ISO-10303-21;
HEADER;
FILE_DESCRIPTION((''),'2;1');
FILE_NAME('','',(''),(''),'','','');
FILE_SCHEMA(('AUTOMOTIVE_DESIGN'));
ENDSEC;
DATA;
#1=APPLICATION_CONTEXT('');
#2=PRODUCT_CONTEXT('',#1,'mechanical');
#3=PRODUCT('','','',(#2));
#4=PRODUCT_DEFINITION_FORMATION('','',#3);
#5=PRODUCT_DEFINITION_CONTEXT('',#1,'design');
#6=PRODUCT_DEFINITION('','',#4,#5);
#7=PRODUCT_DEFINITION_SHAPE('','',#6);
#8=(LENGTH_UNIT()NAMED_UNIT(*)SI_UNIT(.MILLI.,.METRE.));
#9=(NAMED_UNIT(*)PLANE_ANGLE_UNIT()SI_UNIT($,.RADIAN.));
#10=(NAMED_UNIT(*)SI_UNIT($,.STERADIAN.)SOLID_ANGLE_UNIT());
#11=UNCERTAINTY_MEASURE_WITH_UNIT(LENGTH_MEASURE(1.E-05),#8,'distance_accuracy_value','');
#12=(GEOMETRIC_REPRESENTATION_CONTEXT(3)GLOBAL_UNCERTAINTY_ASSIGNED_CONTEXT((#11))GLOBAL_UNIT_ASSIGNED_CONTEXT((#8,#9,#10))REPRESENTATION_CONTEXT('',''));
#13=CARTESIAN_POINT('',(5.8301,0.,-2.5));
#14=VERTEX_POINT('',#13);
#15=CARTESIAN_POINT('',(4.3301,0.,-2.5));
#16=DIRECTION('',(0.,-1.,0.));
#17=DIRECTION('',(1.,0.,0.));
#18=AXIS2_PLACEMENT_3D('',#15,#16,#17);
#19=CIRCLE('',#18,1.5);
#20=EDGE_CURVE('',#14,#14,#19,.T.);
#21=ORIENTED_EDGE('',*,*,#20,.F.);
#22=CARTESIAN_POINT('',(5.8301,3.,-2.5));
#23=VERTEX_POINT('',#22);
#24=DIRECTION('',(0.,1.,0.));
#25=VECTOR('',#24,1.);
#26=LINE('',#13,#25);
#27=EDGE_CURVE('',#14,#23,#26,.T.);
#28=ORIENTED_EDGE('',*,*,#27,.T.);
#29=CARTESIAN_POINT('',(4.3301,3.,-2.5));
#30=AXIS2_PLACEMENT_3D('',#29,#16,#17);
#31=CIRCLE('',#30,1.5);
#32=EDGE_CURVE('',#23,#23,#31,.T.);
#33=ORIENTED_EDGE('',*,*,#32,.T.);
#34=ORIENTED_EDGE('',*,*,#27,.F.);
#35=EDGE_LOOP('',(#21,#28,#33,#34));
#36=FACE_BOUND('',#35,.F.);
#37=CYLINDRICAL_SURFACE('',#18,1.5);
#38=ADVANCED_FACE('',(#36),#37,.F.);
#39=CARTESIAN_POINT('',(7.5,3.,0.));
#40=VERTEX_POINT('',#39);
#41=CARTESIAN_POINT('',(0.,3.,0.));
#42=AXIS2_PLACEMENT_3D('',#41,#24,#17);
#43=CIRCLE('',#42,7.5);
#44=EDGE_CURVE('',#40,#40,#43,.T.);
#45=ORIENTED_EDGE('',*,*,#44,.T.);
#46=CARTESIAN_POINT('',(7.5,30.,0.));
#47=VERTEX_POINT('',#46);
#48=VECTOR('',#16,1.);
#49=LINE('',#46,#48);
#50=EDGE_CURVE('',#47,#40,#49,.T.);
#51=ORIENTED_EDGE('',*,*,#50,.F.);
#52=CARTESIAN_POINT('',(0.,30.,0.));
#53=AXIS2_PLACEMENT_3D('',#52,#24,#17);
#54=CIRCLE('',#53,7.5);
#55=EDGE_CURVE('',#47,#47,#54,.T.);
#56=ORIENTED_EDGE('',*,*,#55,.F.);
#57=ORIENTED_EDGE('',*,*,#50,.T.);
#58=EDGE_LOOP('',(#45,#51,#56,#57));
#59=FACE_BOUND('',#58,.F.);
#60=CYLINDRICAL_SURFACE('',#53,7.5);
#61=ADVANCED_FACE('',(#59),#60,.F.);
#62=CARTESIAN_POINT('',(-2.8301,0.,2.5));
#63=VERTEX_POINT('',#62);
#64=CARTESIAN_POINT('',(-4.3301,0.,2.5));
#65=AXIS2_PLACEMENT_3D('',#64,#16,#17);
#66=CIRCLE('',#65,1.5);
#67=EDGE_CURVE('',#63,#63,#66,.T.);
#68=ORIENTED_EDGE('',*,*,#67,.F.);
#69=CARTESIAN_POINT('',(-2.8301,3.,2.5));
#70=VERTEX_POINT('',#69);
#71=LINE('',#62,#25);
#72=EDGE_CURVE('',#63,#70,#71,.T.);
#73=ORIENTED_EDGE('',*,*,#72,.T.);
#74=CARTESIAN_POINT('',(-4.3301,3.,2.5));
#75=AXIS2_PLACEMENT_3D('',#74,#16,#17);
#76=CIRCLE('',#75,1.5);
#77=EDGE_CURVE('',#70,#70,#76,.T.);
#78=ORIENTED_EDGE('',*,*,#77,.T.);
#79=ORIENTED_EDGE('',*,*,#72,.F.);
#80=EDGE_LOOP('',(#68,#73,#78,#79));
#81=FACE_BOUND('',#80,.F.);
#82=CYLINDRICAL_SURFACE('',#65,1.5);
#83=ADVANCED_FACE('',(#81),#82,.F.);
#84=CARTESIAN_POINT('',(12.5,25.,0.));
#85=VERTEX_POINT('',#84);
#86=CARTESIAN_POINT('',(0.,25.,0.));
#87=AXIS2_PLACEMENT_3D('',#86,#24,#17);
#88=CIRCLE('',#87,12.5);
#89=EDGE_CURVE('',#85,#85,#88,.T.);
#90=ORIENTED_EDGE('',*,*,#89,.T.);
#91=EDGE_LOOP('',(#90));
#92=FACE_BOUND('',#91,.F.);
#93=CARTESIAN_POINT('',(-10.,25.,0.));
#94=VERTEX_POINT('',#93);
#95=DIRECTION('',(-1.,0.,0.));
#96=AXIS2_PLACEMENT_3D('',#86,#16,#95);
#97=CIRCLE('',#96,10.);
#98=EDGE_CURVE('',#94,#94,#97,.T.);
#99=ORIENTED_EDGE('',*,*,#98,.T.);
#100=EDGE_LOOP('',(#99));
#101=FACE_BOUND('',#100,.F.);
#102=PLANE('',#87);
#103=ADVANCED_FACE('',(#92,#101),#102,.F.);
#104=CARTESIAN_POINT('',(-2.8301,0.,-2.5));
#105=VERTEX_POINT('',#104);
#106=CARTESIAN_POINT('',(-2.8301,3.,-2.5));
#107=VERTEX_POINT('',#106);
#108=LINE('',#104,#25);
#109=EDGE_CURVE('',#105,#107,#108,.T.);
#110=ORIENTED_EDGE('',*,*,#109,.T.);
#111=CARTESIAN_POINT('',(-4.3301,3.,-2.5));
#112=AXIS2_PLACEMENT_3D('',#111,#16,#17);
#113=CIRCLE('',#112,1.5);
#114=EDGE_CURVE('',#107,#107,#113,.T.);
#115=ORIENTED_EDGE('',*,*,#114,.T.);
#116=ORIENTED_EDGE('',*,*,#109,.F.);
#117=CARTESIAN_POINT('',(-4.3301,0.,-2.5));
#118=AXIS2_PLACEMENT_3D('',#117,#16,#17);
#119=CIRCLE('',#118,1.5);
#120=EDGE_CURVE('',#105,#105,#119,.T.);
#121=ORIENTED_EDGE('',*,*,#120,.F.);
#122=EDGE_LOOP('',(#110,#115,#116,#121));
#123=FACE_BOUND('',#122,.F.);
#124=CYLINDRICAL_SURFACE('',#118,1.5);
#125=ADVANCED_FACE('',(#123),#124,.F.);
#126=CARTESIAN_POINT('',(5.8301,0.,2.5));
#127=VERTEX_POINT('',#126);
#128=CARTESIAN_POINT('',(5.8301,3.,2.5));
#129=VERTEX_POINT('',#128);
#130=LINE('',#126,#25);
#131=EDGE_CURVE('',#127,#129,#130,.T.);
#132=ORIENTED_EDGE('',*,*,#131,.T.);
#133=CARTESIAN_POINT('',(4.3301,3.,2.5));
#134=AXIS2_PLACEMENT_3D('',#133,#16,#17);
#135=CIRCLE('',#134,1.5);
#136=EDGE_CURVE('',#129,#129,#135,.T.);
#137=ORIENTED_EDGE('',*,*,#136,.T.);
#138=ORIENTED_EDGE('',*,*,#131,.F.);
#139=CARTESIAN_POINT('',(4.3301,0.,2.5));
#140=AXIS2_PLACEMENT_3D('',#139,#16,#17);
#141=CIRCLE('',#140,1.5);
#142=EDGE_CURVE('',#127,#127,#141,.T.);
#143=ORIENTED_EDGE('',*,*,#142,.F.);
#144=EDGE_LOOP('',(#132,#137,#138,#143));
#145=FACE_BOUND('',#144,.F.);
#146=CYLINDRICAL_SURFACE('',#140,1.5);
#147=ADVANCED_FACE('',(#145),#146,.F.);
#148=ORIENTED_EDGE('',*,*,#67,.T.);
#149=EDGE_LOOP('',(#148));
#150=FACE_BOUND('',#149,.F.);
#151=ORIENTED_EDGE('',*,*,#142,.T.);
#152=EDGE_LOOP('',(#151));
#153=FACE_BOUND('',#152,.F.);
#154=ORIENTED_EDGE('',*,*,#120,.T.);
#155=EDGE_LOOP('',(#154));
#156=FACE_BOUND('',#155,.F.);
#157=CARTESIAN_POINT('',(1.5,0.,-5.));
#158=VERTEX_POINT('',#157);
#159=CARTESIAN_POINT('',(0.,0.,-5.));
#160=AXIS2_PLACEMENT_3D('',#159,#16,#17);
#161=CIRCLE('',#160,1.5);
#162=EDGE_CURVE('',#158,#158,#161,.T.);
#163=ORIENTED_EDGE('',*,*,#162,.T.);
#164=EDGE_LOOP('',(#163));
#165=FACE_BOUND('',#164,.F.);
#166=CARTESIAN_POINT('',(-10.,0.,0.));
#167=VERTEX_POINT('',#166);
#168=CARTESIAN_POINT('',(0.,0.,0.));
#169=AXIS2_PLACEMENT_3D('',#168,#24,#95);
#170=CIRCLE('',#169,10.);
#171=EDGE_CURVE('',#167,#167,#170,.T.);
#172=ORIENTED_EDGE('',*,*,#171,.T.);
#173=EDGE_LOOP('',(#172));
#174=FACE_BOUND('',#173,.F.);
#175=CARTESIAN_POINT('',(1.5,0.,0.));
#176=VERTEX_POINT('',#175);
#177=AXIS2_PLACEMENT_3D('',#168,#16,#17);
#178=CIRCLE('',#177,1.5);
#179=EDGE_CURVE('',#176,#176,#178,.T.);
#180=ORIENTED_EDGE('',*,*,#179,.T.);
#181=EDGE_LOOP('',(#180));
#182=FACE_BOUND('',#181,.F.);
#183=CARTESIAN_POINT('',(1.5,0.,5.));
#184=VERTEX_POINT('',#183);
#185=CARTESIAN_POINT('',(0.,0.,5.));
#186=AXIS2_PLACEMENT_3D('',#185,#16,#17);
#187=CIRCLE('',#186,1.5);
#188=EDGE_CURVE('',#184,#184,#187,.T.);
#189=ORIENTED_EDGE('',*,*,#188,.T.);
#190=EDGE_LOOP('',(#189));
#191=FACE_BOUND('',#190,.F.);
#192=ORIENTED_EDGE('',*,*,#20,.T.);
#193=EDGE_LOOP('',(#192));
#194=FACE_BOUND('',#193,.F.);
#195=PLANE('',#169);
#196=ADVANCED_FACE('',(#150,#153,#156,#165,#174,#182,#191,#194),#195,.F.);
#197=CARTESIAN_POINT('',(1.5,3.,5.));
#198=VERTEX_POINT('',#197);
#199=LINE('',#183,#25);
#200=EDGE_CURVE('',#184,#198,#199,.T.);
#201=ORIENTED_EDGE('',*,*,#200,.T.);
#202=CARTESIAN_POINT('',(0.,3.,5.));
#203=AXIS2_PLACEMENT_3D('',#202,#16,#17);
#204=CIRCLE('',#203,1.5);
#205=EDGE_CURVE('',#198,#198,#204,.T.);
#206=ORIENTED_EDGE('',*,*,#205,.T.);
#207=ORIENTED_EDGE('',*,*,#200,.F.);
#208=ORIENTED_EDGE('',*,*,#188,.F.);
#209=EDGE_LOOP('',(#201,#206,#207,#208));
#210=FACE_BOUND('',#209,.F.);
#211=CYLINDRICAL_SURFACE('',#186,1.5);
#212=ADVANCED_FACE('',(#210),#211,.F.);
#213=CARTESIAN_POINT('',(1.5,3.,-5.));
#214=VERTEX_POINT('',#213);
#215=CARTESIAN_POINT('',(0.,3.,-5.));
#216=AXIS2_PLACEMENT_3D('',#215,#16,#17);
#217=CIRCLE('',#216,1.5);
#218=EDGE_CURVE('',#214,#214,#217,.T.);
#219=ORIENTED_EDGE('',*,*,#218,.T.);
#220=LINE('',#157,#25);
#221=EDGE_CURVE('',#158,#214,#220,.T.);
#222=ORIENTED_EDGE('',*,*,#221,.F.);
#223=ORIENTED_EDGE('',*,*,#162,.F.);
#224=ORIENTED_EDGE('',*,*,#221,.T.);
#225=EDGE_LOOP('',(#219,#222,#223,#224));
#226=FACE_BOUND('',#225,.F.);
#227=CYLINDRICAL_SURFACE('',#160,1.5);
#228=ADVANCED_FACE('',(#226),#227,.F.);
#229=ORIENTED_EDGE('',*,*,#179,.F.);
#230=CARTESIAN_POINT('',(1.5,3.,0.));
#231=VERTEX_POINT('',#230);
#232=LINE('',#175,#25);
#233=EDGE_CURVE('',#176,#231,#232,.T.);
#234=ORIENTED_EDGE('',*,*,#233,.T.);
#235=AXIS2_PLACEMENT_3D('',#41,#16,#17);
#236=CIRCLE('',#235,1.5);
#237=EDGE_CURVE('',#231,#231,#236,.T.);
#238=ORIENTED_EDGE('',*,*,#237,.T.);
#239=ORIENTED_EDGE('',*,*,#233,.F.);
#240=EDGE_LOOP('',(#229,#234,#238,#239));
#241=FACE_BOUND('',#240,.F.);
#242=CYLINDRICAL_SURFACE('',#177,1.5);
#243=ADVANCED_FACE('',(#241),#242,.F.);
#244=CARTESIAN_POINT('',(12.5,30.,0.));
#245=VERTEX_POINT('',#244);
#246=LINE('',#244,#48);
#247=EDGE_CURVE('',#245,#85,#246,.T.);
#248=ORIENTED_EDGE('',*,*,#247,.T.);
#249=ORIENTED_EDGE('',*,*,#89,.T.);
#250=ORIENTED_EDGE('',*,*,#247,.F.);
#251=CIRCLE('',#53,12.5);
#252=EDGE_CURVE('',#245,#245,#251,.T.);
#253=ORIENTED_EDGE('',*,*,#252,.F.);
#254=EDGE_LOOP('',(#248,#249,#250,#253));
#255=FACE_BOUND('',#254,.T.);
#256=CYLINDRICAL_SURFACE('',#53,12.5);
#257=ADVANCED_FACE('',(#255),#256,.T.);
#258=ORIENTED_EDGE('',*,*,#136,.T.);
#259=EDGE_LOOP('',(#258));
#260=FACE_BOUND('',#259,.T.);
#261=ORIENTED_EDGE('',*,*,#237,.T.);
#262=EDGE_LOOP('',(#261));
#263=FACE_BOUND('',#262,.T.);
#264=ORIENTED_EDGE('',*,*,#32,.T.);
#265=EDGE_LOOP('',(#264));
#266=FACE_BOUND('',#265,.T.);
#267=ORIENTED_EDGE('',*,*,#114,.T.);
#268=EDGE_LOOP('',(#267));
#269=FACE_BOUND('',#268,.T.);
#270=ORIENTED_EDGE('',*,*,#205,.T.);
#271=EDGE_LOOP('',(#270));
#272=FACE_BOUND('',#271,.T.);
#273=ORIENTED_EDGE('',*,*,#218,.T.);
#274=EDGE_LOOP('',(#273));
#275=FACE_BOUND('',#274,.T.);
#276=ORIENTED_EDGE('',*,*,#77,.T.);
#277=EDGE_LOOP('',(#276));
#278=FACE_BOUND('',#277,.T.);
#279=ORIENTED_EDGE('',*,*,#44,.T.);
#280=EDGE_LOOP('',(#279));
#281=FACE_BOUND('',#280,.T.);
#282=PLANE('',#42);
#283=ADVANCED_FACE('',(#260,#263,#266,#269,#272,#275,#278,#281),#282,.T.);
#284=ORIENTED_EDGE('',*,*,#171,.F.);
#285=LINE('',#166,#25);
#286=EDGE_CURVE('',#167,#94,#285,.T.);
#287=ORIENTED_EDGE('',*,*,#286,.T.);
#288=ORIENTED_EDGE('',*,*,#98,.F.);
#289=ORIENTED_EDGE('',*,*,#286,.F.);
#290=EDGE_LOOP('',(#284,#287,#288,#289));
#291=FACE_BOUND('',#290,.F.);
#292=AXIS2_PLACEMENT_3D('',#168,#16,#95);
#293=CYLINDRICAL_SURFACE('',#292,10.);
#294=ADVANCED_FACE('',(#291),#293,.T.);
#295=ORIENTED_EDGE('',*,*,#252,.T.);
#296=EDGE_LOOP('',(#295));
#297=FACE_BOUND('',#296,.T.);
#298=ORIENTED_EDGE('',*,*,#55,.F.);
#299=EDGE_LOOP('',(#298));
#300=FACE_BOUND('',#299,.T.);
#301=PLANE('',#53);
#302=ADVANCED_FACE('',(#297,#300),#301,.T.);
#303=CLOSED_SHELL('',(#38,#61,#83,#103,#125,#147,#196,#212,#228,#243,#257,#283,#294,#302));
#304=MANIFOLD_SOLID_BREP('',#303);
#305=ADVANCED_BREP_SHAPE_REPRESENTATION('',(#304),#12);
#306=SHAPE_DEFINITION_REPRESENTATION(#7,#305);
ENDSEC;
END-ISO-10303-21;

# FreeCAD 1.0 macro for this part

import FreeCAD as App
import Part
import Sketcher
from FreeCAD import Vector
Q = App.Units.Quantity

doc = App.newDocument("Part")
params = doc.addObject("Spreadsheet::Sheet", "Params")
for row, (alias, value) in enumerate([
    ("sketch1_diameter", "20 mm"),
    ("pad1_length", "30 mm"),
    ("sketch2_diameter", "25 mm"),
    ("pad2_length", "5 mm"),
    ("sketch3_diameter", "15 mm"),
    ("pocket1_length", "27 mm"),
    ("sketch4_diameter", "3 mm"),
    ("pocket2_length", "10 mm"),
], start=1):
    params.set(f"A{row}", alias)
    params.set(f"B{row}", "=" + value)
    params.setAlias(f"B{row}", alias)

body = doc.addObject("PartDesign::Body", "Body")

# Sketch on XZ plane
sketch1 = doc.addObject("Sketcher::SketchObject", "Sketch")
body.addObject(sketch1)
sketch1.AttachmentSupport = (doc.XZ_Plane, [""])
sketch1.MapMode = "FlatFace"
sketch1.addGeometry(Part.Circle(Vector(0, 0, 0), Vector(0, 0, 1), 10), False)
sketch1.addConstraint([
    Sketcher.Constraint("Coincident", 0, 3, -1, 1),
    Sketcher.Constraint("Diameter", 0, Q("20 mm")),
])
sketch1.setExpression("Constraints[1]", "Params.sketch1_diameter")
pad1 = doc.addObject("PartDesign::Pad", "Pad")
body.addObject(pad1)
pad1.Profile = sketch1
pad1.setExpression("Length", "Params.pad1_length")
pad1.Reversed = True

# Sketch on XZ plane
sketch2 = doc.addObject("Sketcher::SketchObject", "Sketch001")
body.addObject(sketch2)
sketch2.AttachmentSupport = (doc.XZ_Plane, [""])
sketch2.MapMode = "FlatFace"
sketch2.AttachmentOffset = App.Placement(Vector(0, 0, -30), App.Rotation())
sketch2.addGeometry(Part.Circle(Vector(0, 0, 0), Vector(0, 0, 1), 12), False)
sketch2.addConstraint([
    Sketcher.Constraint("Coincident", 0, 3, -1, 1),
    Sketcher.Constraint("Diameter", 0, Q("25 mm")),
])
sketch2.setExpression("Constraints[1]", "Params.sketch2_diameter")
pad2 = doc.addObject("PartDesign::Pad", "Pad001")
body.addObject(pad2)
pad2.Profile = sketch2
pad2.setExpression("Length", "Params.pad2_length")

# Sketch on XZ plane
sketch3 = doc.addObject("Sketcher::SketchObject", "Sketch002")
body.addObject(sketch3)
sketch3.AttachmentSupport = (doc.XZ_Plane, [""])
sketch3.MapMode = "FlatFace"
sketch3.AttachmentOffset = App.Placement(Vector(0, 0, -30), App.Rotation())
sketch3.addGeometry(Part.Circle(Vector(0, 0, 0), Vector(0, 0, 1), 8), False)
sketch3.addConstraint([
    Sketcher.Constraint("Coincident", 0, 3, -1, 1),
    Sketcher.Constraint("Diameter", 0, Q("15 mm")),
])
sketch3.setExpression("Constraints[1]", "Params.sketch3_diameter")
pocket1 = doc.addObject("PartDesign::Pocket", "Pocket")
body.addObject(pocket1)
pocket1.Profile = sketch3
pocket1.setExpression("Length", "Params.pocket1_length")
pocket1.Reversed = True

# Sketch on XZ plane
sketch4 = doc.addObject("Sketcher::SketchObject", "Sketch003")
body.addObject(sketch4)
sketch4.AttachmentSupport = (doc.XZ_Plane, [""])
sketch4.MapMode = "FlatFace"
sketch4.addGeometry([
    Part.Circle(Vector(0, 5, 0), Vector(0, 0, 1), 1.5),  # 0
    Part.Circle(Vector(-4.3, 2.5, 0), Vector(0, 0, 1), 1.5),  # 1
    Part.Circle(Vector(-4.3, -2.5, 0), Vector(0, 0, 1), 1.5),  # 2
    Part.Circle(Vector(0, -5, 0), Vector(0, 0, 1), 1.5),  # 3
    Part.Circle(Vector(4.3, -2.5, 0), Vector(0, 0, 1), 1.5),  # 4
    Part.Circle(Vector(4.3, 2.5, 0), Vector(0, 0, 1), 1.5),  # 5
    Part.Circle(Vector(0, 0, 0), Vector(0, 0, 1), 1.5),  # 6
], False)
sketch4.addConstraint([
    Sketcher.Constraint("Coincident", 6, 3, -1, 1),
    Sketcher.Constraint("Equal", 0, 1),
    Sketcher.Constraint("Equal", 1, 2),
    Sketcher.Constraint("Equal", 2, 3),
    Sketcher.Constraint("Equal", 3, 4),
    Sketcher.Constraint("Equal", 4, 5),
    Sketcher.Constraint("Equal", 5, 6),
    Sketcher.Constraint("Symmetric", 0, 3, 3, 3, -1, 1),
    Sketcher.Constraint("Symmetric", 1, 3, 4, 3, -1, 1),
    Sketcher.Constraint("Symmetric", 2, 3, 5, 3, -1, 1),
    Sketcher.Constraint("Symmetric", 2, 3, 4, 3, -2),
    Sketcher.Constraint("PointOnObject", 0, 3, -2),
    Sketcher.Constraint("Diameter", 0, Q("3 mm")),
    Sketcher.Constraint("DistanceY", 3, 3, 0, 3, Q("10 mm")),
    Sketcher.Constraint("DistanceY", 2, 3, 1, 3, Q("5 mm")),
    Sketcher.Constraint("DistanceX", 1, 3, -1, 1, Q("4.33 mm")),
])
sketch4.setExpression("Constraints[12]", "Params.sketch4_diameter")
pocket2 = doc.addObject("PartDesign::Pocket", "Pocket001")
body.addObject(pocket2)
pocket2.Profile = sketch4
pocket2.setExpression("Length", "Params.pocket2_length")

doc.recompute()
